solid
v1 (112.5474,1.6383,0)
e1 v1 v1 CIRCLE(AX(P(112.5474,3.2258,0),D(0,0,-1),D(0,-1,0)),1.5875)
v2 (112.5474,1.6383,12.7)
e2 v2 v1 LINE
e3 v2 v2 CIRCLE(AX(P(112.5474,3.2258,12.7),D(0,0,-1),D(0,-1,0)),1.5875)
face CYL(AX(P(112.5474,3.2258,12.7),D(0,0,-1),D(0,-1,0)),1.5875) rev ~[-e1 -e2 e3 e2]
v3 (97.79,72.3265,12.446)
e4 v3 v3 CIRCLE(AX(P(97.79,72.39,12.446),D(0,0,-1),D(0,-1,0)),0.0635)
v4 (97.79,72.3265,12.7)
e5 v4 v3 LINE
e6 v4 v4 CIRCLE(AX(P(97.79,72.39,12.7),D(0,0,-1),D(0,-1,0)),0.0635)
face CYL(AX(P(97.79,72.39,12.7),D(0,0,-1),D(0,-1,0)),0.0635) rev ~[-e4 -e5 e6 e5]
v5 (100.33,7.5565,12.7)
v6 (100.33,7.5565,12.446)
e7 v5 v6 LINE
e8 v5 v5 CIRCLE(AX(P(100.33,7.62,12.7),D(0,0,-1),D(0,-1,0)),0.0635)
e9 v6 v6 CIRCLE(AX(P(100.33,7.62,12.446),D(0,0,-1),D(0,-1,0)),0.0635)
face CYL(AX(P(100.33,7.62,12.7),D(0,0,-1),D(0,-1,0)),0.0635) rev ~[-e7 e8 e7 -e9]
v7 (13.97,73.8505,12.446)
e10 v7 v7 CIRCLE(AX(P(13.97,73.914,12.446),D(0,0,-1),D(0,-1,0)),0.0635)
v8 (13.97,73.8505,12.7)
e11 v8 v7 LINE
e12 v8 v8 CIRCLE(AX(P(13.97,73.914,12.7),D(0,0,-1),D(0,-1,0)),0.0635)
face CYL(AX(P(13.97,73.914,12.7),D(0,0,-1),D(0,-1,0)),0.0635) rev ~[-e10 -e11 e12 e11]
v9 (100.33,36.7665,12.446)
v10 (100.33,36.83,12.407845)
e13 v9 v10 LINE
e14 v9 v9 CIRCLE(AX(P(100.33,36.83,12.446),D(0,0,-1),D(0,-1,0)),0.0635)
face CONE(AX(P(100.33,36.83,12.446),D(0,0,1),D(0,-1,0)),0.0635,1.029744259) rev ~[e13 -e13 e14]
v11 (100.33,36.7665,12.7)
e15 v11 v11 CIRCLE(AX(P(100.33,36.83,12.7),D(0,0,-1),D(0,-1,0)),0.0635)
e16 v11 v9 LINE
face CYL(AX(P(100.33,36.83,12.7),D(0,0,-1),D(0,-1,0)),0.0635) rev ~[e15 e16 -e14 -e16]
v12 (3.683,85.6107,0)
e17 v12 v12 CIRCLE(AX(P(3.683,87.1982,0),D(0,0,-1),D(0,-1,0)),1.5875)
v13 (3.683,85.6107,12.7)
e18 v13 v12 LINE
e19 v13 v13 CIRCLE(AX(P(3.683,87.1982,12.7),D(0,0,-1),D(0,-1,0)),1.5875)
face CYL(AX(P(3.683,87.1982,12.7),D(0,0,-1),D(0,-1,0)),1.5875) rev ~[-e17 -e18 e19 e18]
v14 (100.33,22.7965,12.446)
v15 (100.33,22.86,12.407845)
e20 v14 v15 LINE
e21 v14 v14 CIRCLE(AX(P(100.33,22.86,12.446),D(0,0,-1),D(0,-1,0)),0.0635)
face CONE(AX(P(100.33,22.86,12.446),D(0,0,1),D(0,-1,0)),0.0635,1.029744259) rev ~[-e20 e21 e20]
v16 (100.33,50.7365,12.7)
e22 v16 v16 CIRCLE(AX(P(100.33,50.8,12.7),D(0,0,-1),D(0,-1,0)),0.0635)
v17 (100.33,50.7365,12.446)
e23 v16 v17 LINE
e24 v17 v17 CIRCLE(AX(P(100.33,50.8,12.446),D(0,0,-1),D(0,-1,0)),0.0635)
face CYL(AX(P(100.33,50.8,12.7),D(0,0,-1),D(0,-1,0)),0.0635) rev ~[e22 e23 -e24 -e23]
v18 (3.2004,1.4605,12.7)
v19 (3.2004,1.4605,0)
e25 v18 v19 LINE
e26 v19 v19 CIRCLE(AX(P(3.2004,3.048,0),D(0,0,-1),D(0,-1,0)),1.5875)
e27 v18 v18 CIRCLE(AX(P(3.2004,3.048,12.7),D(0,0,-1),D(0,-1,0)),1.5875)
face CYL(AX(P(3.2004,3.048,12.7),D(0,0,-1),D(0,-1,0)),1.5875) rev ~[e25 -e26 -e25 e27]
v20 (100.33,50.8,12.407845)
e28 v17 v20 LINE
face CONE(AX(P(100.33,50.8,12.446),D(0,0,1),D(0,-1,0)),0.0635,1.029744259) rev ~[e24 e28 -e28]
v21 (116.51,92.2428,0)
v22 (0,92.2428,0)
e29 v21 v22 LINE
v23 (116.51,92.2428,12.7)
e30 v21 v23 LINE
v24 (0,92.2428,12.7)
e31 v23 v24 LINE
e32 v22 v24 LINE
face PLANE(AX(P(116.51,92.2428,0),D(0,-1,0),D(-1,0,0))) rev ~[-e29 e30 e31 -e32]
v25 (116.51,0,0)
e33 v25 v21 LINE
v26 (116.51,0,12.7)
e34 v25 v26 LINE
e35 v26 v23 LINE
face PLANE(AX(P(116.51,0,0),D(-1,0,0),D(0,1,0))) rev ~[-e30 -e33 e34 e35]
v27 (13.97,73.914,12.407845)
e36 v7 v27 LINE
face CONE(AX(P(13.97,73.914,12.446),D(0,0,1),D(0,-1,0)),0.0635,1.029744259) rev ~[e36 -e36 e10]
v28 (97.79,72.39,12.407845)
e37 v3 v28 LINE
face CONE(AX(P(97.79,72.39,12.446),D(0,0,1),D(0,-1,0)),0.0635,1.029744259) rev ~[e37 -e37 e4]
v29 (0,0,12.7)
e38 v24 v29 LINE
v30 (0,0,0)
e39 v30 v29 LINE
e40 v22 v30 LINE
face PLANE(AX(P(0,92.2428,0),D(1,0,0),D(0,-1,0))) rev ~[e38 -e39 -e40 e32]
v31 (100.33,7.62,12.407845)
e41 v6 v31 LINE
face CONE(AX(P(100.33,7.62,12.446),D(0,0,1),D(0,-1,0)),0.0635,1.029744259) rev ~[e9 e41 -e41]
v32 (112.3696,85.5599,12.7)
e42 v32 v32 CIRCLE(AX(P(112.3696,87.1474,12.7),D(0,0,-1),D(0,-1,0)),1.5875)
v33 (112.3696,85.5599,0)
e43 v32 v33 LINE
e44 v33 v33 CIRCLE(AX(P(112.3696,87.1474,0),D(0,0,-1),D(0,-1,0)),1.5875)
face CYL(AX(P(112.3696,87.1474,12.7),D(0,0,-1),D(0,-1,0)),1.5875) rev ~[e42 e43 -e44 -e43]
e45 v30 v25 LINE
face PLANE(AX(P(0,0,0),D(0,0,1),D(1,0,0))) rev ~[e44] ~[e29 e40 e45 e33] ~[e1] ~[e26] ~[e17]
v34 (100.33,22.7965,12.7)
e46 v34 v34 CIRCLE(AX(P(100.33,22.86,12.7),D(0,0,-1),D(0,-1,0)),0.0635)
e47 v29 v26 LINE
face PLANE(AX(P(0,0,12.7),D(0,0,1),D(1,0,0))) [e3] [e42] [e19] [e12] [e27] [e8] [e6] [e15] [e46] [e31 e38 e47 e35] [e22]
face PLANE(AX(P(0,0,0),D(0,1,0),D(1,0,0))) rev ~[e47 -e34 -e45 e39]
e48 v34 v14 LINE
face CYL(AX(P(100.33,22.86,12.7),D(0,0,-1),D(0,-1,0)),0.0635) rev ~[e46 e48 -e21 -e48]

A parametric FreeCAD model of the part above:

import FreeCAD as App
import Part
import Sketcher

V = App.Vector
Q = App.Units.Quantity


def add_polygon(sketch, points):
    """Adds a closed chain of lines whose ends are joined by coincident constraints."""
    first, n = sketch.GeometryCount, len(points)
    for a, b in zip(points, points[1:] + points[:1]):
        sketch.addGeometry(Part.LineSegment(App.Vector(*a, 0), App.Vector(*b, 0)), False)
    for i in range(n):
        sketch.addConstraint(Sketcher.Constraint("Coincident", first + i, 2, first + (i + 1) % n, 1))

doc = App.newDocument("Part")
body = doc.addObject("PartDesign::Body", "Body")

sketch1 = body.newObject("Sketcher::SketchObject", "Sketch")
sketch1.AttachmentSupport = (doc.getObject("XY_Plane"), [""])
sketch1.MapMode = "FlatFace"
add_polygon(sketch1, [(0, 92.2428), (0, 0), (116.51, 0), (116.51, 92.2428)])
sketch1.addConstraint(Sketcher.Constraint("Vertical", 0))
sketch1.addConstraint(Sketcher.Constraint("Horizontal", 1))
sketch1.addConstraint(Sketcher.Constraint("Vertical", 2))
sketch1.addConstraint(Sketcher.Constraint("Horizontal", 3))
sketch1.addConstraint(Sketcher.Constraint("Coincident", 0, 2, -1, 1))
sketch1.addConstraint(Sketcher.Constraint("DistanceX", 1, 1, 1, 2, Q("4.587 in")))
sketch1.addConstraint(Sketcher.Constraint("DistanceY", 0, 2, 0, 1, Q("3.6316 in")))
pad1 = body.newObject("PartDesign::Pad", "Pad")
pad1.Profile = sketch1
pad1.Length = Q("0.5 in")

sketch2 = body.newObject("Sketcher::SketchObject", "Sketch001")
sketch2.AttachmentSupport = (doc.getObject("XY_Plane"), [""])
sketch2.MapMode = "FlatFace"
sketch2.AttachmentOffset = App.Placement(V(0, 0, 0.5 * 25.4), App.Rotation())
sketch2.addGeometry(Part.Circle(V(3.683, 87.1982, 0), V(0, 0, 1), 1.5875), False)
sketch2.addGeometry(Part.Circle(V(3.2004, 3.048, 0), V(0, 0, 1), 1.5875), False)
sketch2.addGeometry(Part.Circle(V(112.5474, 3.2258, 0), V(0, 0, 1), 1.5875), False)
sketch2.addGeometry(Part.Circle(V(112.3696, 87.1474, 0), V(0, 0, 1), 1.5875), False)
sketch2.addConstraint(Sketcher.Constraint("Equal", 0, 1))
sketch2.addConstraint(Sketcher.Constraint("Equal", 1, 2))
sketch2.addConstraint(Sketcher.Constraint("Equal", 2, 3))
sketch2.addConstraint(Sketcher.Constraint("Diameter", 0, Q("0.125 in")))
sketch2.addConstraint(Sketcher.Constraint("DistanceY", -1, 1, 1, 3, Q("0.12 in")))
sketch2.addConstraint(Sketcher.Constraint("DistanceX", -1, 1, 0, 3, Q("0.145 in")))
sketch2.addConstraint(Sketcher.Constraint("DistanceY", -1, 1, 0, 3, Q("3.433 in")))
sketch2.addConstraint(Sketcher.Constraint("DistanceX", -1, 1, 1, 3, Q("0.126 in")))
sketch2.addConstraint(Sketcher.Constraint("DistanceX", -1, 1, 2, 3, Q("4.431 in")))
sketch2.addConstraint(Sketcher.Constraint("DistanceY", -1, 1, 2, 3, Q("0.127 in")))
sketch2.addConstraint(Sketcher.Constraint("DistanceX", -1, 1, 3, 3, Q("4.424 in")))
sketch2.addConstraint(Sketcher.Constraint("DistanceY", -1, 1, 3, 3, Q("3.431 in")))
doc.recompute()
hole = body.newObject("PartDesign::Hole", "Hole")
hole.Profile = sketch2
hole.ThreadType = "None"
hole.Diameter = Q("0.125 in")
hole.DepthType = "ThroughAll"

sketch3 = body.newObject("Sketcher::SketchObject", "Sketch002")
sketch3.AttachmentSupport = (doc.getObject("XY_Plane"), [""])
sketch3.MapMode = "FlatFace"
sketch3.AttachmentOffset = App.Placement(V(0, 0, 0.5 * 25.4), App.Rotation())
sketch3.addGeometry(Part.Circle(V(13.97, 73.914, 0), V(0, 0, 1), 0.0635), False)
sketch3.addGeometry(Part.Circle(V(97.79, 72.39, 0), V(0, 0, 1), 0.0635), False)
sketch3.addGeometry(Part.Circle(V(100.33, 50.8, 0), V(0, 0, 1), 0.0635), False)
sketch3.addGeometry(Part.Circle(V(100.33, 36.83, 0), V(0, 0, 1), 0.0635), False)
sketch3.addGeometry(Part.Circle(V(100.33, 22.86, 0), V(0, 0, 1), 0.0635), False)
sketch3.addGeometry(Part.Circle(V(100.33, 7.62, 0), V(0, 0, 1), 0.0635), False)
sketch3.addConstraint(Sketcher.Constraint("Equal", 0, 1))
sketch3.addConstraint(Sketcher.Constraint("Equal", 1, 2))
sketch3.addConstraint(Sketcher.Constraint("Equal", 2, 3))
sketch3.addConstraint(Sketcher.Constraint("Equal", 3, 4))
sketch3.addConstraint(Sketcher.Constraint("Equal", 4, 5))
sketch3.addConstraint(Sketcher.Constraint("Vertical", 2, 3, 3, 3))
sketch3.addConstraint(Sketcher.Constraint("Vertical", 3, 3, 4, 3))
sketch3.addConstraint(Sketcher.Constraint("Vertical", 4, 3, 5, 3))
sketch3.addConstraint(Sketcher.Constraint("Diameter", 0, Q("0.005 in")))
sketch3.addConstraint(Sketcher.Constraint("DistanceY", -1, 1, 2, 3, Q("2 in")))
sketch3.addConstraint(Sketcher.Constraint("DistanceY", -1, 1, 4, 3, Q("0.9 in")))
sketch3.addConstraint(Sketcher.Constraint("DistanceY", -1, 1, 5, 3, Q("0.3 in")))
sketch3.addConstraint(Sketcher.Constraint("DistanceX", 0, 3, 1, 3, Q("3.3 in")))
sketch3.addConstraint(Sketcher.Constraint("DistanceX", 1, 3, 2, 3, Q("0.1 in")))
sketch3.addConstraint(Sketcher.Constraint("DistanceY", 3, 3, 1, 3, Q("1.4 in")))
sketch3.addConstraint(Sketcher.Constraint("DistanceX", -1, 1, 0, 3, Q("0.55 in")))
sketch3.addConstraint(Sketcher.Constraint("DistanceY", -1, 1, 0, 3, Q("2.91 in")))
sketch3.addConstraint(Sketcher.Constraint("DistanceY", -1, 1, 1, 3, Q("2.85 in")))
doc.recompute()
hole2 = body.newObject("PartDesign::Hole", "Hole001")
hole2.Profile = sketch3
hole2.ThreadType = "None"
hole2.Diameter = Q("0.005 in")
hole2.DepthType = "Dimension"
hole2.Depth = Q("0.01 in")
hole2.DrillPoint = "Angled"
hole2.DrillPointAngle = 118

doc.recompute()
